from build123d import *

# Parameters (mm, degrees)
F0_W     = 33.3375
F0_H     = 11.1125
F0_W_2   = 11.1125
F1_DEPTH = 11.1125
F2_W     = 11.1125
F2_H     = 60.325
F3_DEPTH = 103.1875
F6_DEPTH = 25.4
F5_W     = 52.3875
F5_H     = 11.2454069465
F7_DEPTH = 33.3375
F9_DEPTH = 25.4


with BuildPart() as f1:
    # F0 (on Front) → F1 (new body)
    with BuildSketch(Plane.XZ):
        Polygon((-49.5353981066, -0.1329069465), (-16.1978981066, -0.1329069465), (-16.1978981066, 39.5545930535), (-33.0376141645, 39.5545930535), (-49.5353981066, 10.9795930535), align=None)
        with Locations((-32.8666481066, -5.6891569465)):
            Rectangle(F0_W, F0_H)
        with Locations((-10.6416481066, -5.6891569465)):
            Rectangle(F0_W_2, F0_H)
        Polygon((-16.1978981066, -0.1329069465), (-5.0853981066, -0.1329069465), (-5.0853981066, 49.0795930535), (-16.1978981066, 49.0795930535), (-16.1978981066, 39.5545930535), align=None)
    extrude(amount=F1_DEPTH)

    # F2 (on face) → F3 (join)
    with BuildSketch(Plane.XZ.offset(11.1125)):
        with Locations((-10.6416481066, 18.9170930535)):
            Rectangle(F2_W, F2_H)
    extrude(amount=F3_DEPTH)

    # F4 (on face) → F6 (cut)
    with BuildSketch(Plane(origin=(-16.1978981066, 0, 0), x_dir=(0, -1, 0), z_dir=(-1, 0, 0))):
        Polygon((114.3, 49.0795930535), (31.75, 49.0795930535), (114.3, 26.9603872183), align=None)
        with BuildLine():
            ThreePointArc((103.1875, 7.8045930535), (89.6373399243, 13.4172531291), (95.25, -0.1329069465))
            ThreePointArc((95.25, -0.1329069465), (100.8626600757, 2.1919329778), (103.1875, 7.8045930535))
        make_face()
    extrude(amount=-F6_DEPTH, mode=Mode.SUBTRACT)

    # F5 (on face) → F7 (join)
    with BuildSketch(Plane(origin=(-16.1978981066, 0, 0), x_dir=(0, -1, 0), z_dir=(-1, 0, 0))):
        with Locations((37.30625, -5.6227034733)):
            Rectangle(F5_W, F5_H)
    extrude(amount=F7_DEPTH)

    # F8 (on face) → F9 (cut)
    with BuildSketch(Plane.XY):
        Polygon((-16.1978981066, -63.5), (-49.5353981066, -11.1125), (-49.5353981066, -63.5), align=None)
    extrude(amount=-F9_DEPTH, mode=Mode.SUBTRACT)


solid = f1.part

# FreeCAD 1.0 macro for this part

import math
import FreeCAD as App
import Part
import Sketcher

V = App.Vector
Q = App.Units.Quantity

doc = App.newDocument("Part")
body = doc.addObject("PartDesign::Body", "Body")

sketch1 = body.newObject("Sketcher::SketchObject", "Sketch")
sketch1.AttachmentSupport = (doc.getObject("XZ_Plane"), [""])
sketch1.MapMode = "FlatFace"
sketch1.addGeometry(Part.LineSegment(V(-16.197898, 39.554593, 0), V(-33.037614, 39.554593, 0)), False)
sketch1.addGeometry(Part.LineSegment(V(-33.037614, 39.554593, 0), V(-49.535398, 10.979593, 0)), False)
sketch1.addGeometry(Part.LineSegment(V(-49.535398, 10.979593, 0), V(-49.535398, -11.245407, 0)), False)
sketch1.addGeometry(Part.LineSegment(V(-49.535398, -11.245407, 0), V(-5.085398, -11.245407, 0)), False)
sketch1.addGeometry(Part.LineSegment(V(-5.085398, -11.245407, 0), V(-5.085398, 49.079593, 0)), False)
sketch1.addGeometry(Part.LineSegment(V(-5.085398, 49.079593, 0), V(-16.197898, 49.079593, 0)), False)
sketch1.addGeometry(Part.LineSegment(V(-16.197898, 49.079593, 0), V(-16.197898, 39.554593, 0)), False)
sketch1.addConstraint(Sketcher.Constraint("Coincident", 0, 2, 1, 1))
sketch1.addConstraint(Sketcher.Constraint("Coincident", 1, 2, 2, 1))
sketch1.addConstraint(Sketcher.Constraint("Coincident", 2, 2, 3, 1))
sketch1.addConstraint(Sketcher.Constraint("Coincident", 3, 2, 4, 1))
sketch1.addConstraint(Sketcher.Constraint("Coincident", 4, 2, 5, 1))
sketch1.addConstraint(Sketcher.Constraint("Coincident", 5, 2, 6, 1))
sketch1.addConstraint(Sketcher.Constraint("Coincident", 6, 2, 0, 1))
sketch1.addConstraint(Sketcher.Constraint("Horizontal", 0))
sketch1.addConstraint(Sketcher.Constraint("Vertical", 2))
sketch1.addConstraint(Sketcher.Constraint("Horizontal", 3))
sketch1.addConstraint(Sketcher.Constraint("Vertical", 4))
sketch1.addConstraint(Sketcher.Constraint("Horizontal", 5))
sketch1.addConstraint(Sketcher.Constraint("Vertical", 6))
sketch1.addConstraint(Sketcher.Constraint("Angle", 1, Q("-120 deg")))
sketch1.addConstraint(Sketcher.Constraint("DistanceY", 2, 2, 0, 2, Q("2 in")))
sketch1.addConstraint(Sketcher.Constraint("DistanceX", 3, 1, 3, 2, Q("1.75 in")))
sketch1.addConstraint(Sketcher.Constraint("DistanceY", 1, 2, 4, 2, Q("1.5 in")))
sketch1.addConstraint(Sketcher.Constraint("DistanceX", 5, 2, 5, 1, Q("0.4375 in")))
sketch1.addConstraint(Sketcher.Constraint("DistanceY", 2, 2, 2, 1, Q("0.875 in")))
sketch1.addConstraint(Sketcher.Constraint("DistanceX", 1, 2, -1, 1, Q("49.535398 mm")))
sketch1.addConstraint(Sketcher.Constraint("DistanceY", -1, 1, 0, 2, Q("39.554593 mm")))
pad1 = body.newObject("PartDesign::Pad", "Pad")
pad1.Profile = sketch1
pad1.Length = Q("0.4375 in")

sketch2 = body.newObject("Sketcher::SketchObject", "Sketch001")
sketch2.AttachmentSupport = (doc.getObject("XZ_Plane"), [""])
sketch2.MapMode = "FlatFace"
sketch2.AttachmentOffset = App.Placement(V(0, 0, 0.4375 * 25.4), App.Rotation())
sketch2.addGeometry(Part.LineSegment(V(-16.197898, 49.079593, 0), V(-16.197898, -11.245407, 0)), False)
sketch2.addGeometry(Part.LineSegment(V(-16.197898, -11.245407, 0), V(-5.085398, -11.245407, 0)), False)
sketch2.addGeometry(Part.LineSegment(V(-5.085398, -11.245407, 0), V(-5.085398, 49.079593, 0)), False)
sketch2.addGeometry(Part.LineSegment(V(-5.085398, 49.079593, 0), V(-16.197898, 49.079593, 0)), False)
sketch2.addConstraint(Sketcher.Constraint("Coincident", 0, 2, 1, 1))
sketch2.addConstraint(Sketcher.Constraint("Coincident", 1, 2, 2, 1))
sketch2.addConstraint(Sketcher.Constraint("Coincident", 2, 2, 3, 1))
sketch2.addConstraint(Sketcher.Constraint("Coincident", 3, 2, 0, 1))
sketch2.addConstraint(Sketcher.Constraint("Vertical", 0))
sketch2.addConstraint(Sketcher.Constraint("Horizontal", 1))
sketch2.addConstraint(Sketcher.Constraint("Vertical", 2))
sketch2.addConstraint(Sketcher.Constraint("Horizontal", 3))
sketch2.addConstraint(Sketcher.Constraint("DistanceX", 1, 1, 1, 2, Q("0.4375 in")))
sketch2.addConstraint(Sketcher.Constraint("DistanceY", 0, 2, 0, 1, Q("2.375 in")))
sketch2.addConstraint(Sketcher.Constraint("DistanceX", 0, 2, -1, 1, Q("16.197898 mm")))
sketch2.addConstraint(Sketcher.Constraint("DistanceY", 0, 2, -1, 1, Q("11.245407 mm")))
pad2 = body.newObject("PartDesign::Pad", "Pad001")
pad2.Profile = sketch2
pad2.Length = Q("4.0625 in")

sketch3 = body.newObject("Sketcher::SketchObject", "Sketch002")
sketch3.AttachmentSupport = (doc.getObject("YZ_Plane"), [""])
sketch3.MapMode = "FlatFace"
sketch3.AttachmentOffset = App.Placement(V(0, 0, -16.197898), App.Rotation())
sketch3.addGeometry(Part.LineSegment(V(-114.3, 49.079593, 0), V(-31.75, 49.079593, 0)), False)
sketch3.addGeometry(Part.LineSegment(V(-31.75, 49.079593, 0), V(-114.3, 26.960387, 0)), False)
sketch3.addGeometry(Part.LineSegment(V(-114.3, 26.960387, 0), V(-114.3, 49.079593, 0)), False)
sketch3.addGeometry(Part.ArcOfCircle(Part.Circle(V(-95.25, 7.804593, 0), V(0, 0, 1), 7.9375), math.radians(-90), math.radians(180)), False)
sketch3.addGeometry(Part.ArcOfCircle(Part.Circle(V(-95.25, 7.804593, 0), V(0, 0, 1), 7.9375), math.radians(180), math.radians(270)), False)
sketch3.addConstraint(Sketcher.Constraint("Coincident", 0, 2, 1, 1))
sketch3.addConstraint(Sketcher.Constraint("Coincident", 1, 2, 2, 1))
sketch3.addConstraint(Sketcher.Constraint("Coincident", 2, 2, 0, 1))
sketch3.addConstraint(Sketcher.Constraint("Tangent", 3, 1, 4, 2))
sketch3.addConstraint(Sketcher.Constraint("Coincident", 4, 1, 3, 2))
sketch3.addConstraint(Sketcher.Constraint("Horizontal", 0))
sketch3.addConstraint(Sketcher.Constraint("Vertical", 2))
sketch3.addConstraint(Sketcher.Constraint("Horizontal", 3, 3, 4, 1))
sketch3.addConstraint(Sketcher.Constraint("Vertical", 4, 3, 3, 1))
sketch3.addConstraint(Sketcher.Constraint("Angle", 1, Q("-165 deg")))
sketch3.addConstraint(Sketcher.Constraint("Radius", 3, Q("0.3125 in")))
sketch3.addConstraint(Sketcher.Constraint("DistanceX", 0, 1, 0, 2, Q("3.25 in")))
sketch3.addConstraint(Sketcher.Constraint("DistanceX", 1, 2, -1, 1, Q("4.5 in")))
sketch3.addConstraint(Sketcher.Constraint("DistanceX", 3, 3, 0, 2, Q("2.5 in")))
sketch3.addConstraint(Sketcher.Constraint("DistanceY", 3, 3, 0, 2, Q("1.625 in")))
sketch3.addConstraint(Sketcher.Constraint("DistanceY", -1, 1, 3, 3, Q("7.804593 mm")))
pocket1 = body.newObject("PartDesign::Pocket", "Pocket")
pocket1.Profile = sketch3
pocket1.Length = Q("1 in")
pocket1.Reversed = True

sketch4 = body.newObject("Sketcher::SketchObject", "Sketch003")
sketch4.AttachmentSupport = (doc.getObject("YZ_Plane"), [""])
sketch4.MapMode = "FlatFace"
sketch4.AttachmentOffset = App.Placement(V(0, 0, -16.197898), App.Rotation())
sketch4.addGeometry(Part.LineSegment(V(-11.1125, 0, 0), V(-11.1125, -11.245407, 0)), False)
sketch4.addGeometry(Part.LineSegment(V(-11.1125, -11.245407, 0), V(-63.5, -11.245407, 0)), False)
sketch4.addGeometry(Part.LineSegment(V(-63.5, -11.245407, 0), V(-63.5, 0, 0)), False)
sketch4.addGeometry(Part.LineSegment(V(-63.5, 0, 0), V(-11.1125, 0, 0)), False)
sketch4.addConstraint(Sketcher.Constraint("Coincident", 0, 2, 1, 1))
sketch4.addConstraint(Sketcher.Constraint("Coincident", 1, 2, 2, 1))
sketch4.addConstraint(Sketcher.Constraint("Coincident", 2, 2, 3, 1))
sketch4.addConstraint(Sketcher.Constraint("Coincident", 3, 2, 0, 1))
sketch4.addConstraint(Sketcher.Constraint("Vertical", 0))
sketch4.addConstraint(Sketcher.Constraint("Horizontal", 1))
sketch4.addConstraint(Sketcher.Constraint("Vertical", 2))
sketch4.addConstraint(Sketcher.Constraint("Horizontal", 3))
sketch4.addConstraint(Sketcher.Constraint("PointOnObject", 2, 2, -1))
sketch4.addConstraint(Sketcher.Constraint("DistanceX", 1, 2, -1, 1, Q("2.5 in")))
sketch4.addConstraint(Sketcher.Constraint("DistanceX", 1, 2, 1, 1, Q("2.0625 in")))
sketch4.addConstraint(Sketcher.Constraint("DistanceY", 0, 2, 0, 1, Q("11.245407 mm")))
pad3 = body.newObject("PartDesign::Pad", "Pad002")
pad3.Profile = sketch4
pad3.Length = Q("1.3125 in")
pad3.Reversed = True

sketch5 = body.newObject("Sketcher::SketchObject", "Sketch004")
sketch5.AttachmentSupport = (doc.getObject("XY_Plane"), [""])
sketch5.MapMode = "FlatFace"
sketch5.addGeometry(Part.LineSegment(V(-16.197898, -63.5, 0), V(-49.535398, -11.1125, 0)), False)
sketch5.addGeometry(Part.LineSegment(V(-49.535398, -11.1125, 0), V(-49.535398, -63.5, 0)), False)
sketch5.addGeometry(Part.LineSegment(V(-49.535398, -63.5, 0), V(-16.197898, -63.5, 0)), False)
sketch5.addConstraint(Sketcher.Constraint("Coincident", 0, 2, 1, 1))
sketch5.addConstraint(Sketcher.Constraint("Coincident", 1, 2, 2, 1))
sketch5.addConstraint(Sketcher.Constraint("Coincident", 2, 2, 0, 1))
sketch5.addConstraint(Sketcher.Constraint("Vertical", 1))
sketch5.addConstraint(Sketcher.Constraint("Horizontal", 2))
sketch5.addConstraint(Sketcher.Constraint("DistanceY", 1, 2, -1, 1, Q("2.5 in")))
sketch5.addConstraint(Sketcher.Constraint("DistanceX", 2, 1, 2, 2, Q("1.3125 in")))
sketch5.addConstraint(Sketcher.Constraint("DistanceY", 1, 2, 1, 1, Q("2.0625 in")))
sketch5.addConstraint(Sketcher.Constraint("DistanceX", 0, 2, -1, 1, Q("49.535398 mm")))
pocket2 = body.newObject("PartDesign::Pocket", "Pocket001")
pocket2.Profile = sketch5
pocket2.Length = Q("1 in")

doc.recompute()
